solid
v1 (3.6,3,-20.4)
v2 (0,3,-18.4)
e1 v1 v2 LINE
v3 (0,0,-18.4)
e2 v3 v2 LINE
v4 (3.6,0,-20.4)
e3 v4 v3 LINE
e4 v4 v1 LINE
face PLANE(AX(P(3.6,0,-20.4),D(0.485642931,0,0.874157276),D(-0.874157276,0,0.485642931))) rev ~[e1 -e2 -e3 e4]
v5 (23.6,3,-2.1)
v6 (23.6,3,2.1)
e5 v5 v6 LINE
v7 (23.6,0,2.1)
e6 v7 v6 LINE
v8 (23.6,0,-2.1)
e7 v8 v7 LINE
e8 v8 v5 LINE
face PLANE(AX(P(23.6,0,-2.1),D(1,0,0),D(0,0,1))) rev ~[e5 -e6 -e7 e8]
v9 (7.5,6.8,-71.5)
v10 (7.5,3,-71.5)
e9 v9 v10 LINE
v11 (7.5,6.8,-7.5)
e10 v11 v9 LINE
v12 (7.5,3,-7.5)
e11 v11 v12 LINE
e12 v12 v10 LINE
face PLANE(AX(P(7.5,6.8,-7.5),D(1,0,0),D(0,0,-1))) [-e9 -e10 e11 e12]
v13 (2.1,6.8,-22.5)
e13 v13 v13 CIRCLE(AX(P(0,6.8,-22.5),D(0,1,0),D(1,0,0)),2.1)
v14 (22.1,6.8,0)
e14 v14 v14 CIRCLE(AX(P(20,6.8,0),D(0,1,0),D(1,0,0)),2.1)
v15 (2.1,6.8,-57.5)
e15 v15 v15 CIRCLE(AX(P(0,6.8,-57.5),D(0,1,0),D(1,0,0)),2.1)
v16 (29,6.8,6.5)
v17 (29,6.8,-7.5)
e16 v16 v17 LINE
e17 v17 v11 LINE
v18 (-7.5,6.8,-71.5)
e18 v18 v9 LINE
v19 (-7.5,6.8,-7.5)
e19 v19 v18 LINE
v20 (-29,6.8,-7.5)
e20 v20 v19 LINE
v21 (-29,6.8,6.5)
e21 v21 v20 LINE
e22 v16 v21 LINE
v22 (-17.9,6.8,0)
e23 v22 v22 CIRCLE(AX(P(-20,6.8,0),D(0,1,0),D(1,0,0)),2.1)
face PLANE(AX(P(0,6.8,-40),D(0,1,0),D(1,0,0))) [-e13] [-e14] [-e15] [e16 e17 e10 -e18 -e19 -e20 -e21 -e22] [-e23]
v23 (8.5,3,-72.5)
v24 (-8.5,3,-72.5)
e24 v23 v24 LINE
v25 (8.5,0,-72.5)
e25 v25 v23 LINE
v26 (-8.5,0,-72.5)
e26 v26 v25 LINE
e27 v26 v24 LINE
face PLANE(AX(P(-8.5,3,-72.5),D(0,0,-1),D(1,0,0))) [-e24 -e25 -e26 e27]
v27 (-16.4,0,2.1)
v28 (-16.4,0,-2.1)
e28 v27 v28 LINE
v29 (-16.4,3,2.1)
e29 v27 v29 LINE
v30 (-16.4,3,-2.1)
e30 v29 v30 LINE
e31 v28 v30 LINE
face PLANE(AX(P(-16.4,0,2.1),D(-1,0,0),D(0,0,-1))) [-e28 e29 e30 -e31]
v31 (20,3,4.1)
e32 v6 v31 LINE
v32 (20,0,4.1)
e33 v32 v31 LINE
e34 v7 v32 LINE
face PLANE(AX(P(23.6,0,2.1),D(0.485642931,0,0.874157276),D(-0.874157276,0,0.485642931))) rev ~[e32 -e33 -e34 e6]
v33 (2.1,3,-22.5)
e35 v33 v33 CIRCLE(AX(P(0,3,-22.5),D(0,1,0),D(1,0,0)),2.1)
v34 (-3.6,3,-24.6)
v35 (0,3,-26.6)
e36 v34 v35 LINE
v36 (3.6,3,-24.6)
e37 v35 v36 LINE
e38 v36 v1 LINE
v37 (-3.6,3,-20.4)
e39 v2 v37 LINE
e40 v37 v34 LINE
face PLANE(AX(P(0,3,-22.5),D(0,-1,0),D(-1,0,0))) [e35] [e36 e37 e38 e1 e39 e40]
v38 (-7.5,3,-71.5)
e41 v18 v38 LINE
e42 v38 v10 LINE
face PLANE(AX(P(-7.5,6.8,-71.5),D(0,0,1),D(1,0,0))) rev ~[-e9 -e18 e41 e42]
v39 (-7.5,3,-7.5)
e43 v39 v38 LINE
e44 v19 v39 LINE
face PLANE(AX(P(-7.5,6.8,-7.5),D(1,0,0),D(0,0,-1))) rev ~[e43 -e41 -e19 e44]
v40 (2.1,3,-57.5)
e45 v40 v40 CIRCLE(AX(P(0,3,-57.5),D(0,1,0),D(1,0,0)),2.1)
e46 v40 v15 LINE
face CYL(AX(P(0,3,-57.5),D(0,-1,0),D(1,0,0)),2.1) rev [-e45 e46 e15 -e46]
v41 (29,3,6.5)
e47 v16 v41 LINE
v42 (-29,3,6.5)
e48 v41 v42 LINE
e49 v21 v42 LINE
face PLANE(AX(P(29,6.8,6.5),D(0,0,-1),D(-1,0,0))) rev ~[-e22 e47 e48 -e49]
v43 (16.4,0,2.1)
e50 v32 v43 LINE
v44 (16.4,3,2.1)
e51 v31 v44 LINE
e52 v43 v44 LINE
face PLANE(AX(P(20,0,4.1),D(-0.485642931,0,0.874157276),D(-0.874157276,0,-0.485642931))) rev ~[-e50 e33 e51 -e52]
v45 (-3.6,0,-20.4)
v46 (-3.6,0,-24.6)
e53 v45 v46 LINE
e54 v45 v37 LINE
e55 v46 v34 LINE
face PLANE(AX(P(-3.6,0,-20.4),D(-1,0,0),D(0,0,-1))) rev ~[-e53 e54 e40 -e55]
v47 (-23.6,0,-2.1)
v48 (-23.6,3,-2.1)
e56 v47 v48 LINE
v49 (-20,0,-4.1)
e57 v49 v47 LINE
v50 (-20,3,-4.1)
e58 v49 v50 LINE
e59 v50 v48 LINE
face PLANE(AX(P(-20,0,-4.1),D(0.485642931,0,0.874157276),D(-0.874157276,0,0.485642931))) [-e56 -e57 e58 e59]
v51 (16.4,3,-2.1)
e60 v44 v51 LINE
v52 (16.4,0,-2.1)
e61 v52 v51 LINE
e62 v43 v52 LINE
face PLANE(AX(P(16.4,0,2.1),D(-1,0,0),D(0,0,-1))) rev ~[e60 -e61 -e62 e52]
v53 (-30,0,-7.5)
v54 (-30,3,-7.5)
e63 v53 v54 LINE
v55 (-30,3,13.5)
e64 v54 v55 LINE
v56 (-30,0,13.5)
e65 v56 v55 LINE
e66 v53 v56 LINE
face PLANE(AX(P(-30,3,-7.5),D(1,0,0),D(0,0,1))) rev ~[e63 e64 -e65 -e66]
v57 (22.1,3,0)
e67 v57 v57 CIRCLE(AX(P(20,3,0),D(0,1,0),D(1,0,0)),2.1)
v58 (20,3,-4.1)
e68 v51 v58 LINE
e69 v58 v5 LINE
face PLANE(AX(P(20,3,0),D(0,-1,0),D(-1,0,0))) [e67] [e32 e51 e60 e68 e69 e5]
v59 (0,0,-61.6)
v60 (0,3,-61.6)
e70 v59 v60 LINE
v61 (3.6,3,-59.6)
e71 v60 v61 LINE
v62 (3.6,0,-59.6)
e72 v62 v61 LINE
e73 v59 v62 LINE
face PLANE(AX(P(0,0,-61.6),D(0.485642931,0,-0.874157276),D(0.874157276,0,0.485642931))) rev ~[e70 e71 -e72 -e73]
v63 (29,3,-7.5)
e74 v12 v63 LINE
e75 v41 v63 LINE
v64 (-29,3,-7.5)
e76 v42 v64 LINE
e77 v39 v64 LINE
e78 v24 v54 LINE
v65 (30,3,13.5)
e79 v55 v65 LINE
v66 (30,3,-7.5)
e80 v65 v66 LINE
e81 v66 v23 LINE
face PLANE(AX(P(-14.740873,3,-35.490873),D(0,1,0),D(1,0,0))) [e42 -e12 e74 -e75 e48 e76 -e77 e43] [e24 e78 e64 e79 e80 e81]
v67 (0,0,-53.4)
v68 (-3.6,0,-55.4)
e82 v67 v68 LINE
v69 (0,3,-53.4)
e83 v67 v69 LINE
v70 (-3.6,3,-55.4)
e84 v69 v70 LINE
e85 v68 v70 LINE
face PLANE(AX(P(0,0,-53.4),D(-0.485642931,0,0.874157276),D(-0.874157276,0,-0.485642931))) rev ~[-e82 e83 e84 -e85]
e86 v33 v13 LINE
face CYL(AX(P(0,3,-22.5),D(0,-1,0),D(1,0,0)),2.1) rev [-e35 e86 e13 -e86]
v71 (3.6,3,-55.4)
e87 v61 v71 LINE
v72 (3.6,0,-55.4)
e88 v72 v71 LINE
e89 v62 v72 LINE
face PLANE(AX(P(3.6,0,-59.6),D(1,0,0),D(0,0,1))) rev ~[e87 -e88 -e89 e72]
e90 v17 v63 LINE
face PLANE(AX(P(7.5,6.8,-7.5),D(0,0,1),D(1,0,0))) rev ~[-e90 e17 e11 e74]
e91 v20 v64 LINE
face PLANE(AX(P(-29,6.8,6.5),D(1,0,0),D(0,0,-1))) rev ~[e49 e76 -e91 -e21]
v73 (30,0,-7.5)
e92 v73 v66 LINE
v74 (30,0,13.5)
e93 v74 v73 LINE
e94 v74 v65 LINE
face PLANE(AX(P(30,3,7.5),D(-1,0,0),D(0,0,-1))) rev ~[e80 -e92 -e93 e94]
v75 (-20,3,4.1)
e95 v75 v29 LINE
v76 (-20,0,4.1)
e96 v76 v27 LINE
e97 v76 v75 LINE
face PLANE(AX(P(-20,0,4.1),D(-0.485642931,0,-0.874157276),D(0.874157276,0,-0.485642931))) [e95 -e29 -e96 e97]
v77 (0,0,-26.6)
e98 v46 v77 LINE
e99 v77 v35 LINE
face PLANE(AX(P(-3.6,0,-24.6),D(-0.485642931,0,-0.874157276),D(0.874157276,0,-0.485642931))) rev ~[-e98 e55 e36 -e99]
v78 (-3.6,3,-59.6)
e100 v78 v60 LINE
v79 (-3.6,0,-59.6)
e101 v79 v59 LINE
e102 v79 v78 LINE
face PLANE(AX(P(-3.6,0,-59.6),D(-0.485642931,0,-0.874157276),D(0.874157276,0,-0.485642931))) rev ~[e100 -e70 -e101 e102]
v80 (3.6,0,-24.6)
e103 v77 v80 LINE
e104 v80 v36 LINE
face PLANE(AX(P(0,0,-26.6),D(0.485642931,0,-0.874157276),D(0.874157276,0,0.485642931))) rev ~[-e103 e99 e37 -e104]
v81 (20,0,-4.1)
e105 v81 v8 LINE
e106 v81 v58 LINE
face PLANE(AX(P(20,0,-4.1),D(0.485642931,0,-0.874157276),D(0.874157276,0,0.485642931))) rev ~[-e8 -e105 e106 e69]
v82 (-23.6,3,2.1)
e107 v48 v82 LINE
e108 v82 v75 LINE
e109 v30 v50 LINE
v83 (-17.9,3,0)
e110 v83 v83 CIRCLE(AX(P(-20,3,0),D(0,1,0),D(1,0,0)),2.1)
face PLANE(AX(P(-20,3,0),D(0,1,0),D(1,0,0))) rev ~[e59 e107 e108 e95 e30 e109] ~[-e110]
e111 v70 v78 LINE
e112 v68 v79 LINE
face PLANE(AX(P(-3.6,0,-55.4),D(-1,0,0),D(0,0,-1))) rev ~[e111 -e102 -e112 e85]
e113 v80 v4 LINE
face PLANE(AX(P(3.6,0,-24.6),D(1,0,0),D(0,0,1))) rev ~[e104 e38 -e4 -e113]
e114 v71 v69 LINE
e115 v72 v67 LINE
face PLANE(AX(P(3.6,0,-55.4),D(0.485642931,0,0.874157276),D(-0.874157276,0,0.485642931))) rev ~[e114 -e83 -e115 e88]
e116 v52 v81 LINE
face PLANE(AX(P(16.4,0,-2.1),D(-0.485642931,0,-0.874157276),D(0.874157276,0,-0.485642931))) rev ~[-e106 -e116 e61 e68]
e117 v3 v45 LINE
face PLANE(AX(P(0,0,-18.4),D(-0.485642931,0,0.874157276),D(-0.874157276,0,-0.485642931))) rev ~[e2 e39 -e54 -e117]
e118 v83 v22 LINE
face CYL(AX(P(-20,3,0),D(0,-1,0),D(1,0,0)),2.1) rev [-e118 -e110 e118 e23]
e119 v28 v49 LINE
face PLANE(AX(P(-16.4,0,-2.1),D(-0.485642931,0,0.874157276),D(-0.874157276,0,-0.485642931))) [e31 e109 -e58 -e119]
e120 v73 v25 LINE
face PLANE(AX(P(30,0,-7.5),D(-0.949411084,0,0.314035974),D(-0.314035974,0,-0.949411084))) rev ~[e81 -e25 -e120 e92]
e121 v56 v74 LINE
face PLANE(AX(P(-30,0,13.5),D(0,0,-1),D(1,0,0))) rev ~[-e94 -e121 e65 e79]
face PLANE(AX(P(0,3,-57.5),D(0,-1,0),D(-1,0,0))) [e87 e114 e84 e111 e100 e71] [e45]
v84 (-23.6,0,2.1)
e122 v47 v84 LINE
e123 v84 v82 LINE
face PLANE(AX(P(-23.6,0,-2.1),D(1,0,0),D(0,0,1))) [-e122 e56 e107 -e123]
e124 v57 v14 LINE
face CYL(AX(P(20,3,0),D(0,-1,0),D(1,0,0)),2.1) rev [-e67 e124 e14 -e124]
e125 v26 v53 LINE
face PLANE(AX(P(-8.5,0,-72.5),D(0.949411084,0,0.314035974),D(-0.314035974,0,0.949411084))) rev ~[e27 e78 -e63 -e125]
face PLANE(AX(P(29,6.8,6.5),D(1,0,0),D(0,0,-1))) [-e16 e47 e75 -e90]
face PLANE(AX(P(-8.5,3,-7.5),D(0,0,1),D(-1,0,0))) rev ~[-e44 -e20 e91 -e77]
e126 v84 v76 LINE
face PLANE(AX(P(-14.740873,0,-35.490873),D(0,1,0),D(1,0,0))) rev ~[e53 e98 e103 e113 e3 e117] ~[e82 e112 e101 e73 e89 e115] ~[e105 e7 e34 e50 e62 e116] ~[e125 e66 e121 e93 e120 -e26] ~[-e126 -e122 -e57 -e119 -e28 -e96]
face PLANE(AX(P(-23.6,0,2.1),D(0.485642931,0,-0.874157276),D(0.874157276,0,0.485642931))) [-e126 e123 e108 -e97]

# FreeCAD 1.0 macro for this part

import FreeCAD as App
import Part
import Sketcher

V = App.Vector


def add_polygon(sketch, points):
    """Adds a closed chain of lines whose ends are joined by coincident constraints."""
    first, n = sketch.GeometryCount, len(points)
    for a, b in zip(points, points[1:] + points[:1]):
        sketch.addGeometry(Part.LineSegment(App.Vector(*a, 0), App.Vector(*b, 0)), False)
    for i in range(n):
        sketch.addConstraint(Sketcher.Constraint("Coincident", first + i, 2, first + (i + 1) % n, 1))

doc = App.newDocument("Part")
body = doc.addObject("PartDesign::Body", "Body")

# Sketch on XZ plane
sketch1 = body.newObject("Sketcher::SketchObject", "Sketch")
sketch1.AttachmentSupport = (doc.getObject("XZ_Plane"), [""])
sketch1.MapMode = "FlatFace"
add_polygon(sketch1, [(-8.5, -72.5), (-30, -7.5), (-30, 13.5), (30, 13.5), (30, -7.5), (8.5, -72.5)])  # lines 0-5
sketch1.addConstraint([
    Sketcher.Constraint("Vertical", 1),
    Sketcher.Constraint("Horizontal", 2),
    Sketcher.Constraint("Vertical", 3),
    Sketcher.Constraint("Horizontal", 5),
    Sketcher.Constraint("Symmetric", 0, 2, 3, 2, -2),
    Sketcher.Constraint("Equal", 0, 4),
    Sketcher.Constraint("DistanceX", 2, 1, 2, 2, 60.0),
    Sketcher.Constraint("DistanceX", 5, 2, 5, 1, 17.0),
    Sketcher.Constraint("DistanceY", 1, 1, 1, 2, 21.0),
    Sketcher.Constraint("DistanceY", 4, 2, 3, 2, 65.0),
    Sketcher.Constraint("DistanceY", 0, 2, -1, 1, 7.5),
])
pad1 = body.newObject("PartDesign::Pad", "Pad")
pad1.Profile = sketch1
pad1.Length = 3
pad1.Reversed = True

# Sketch on XZ plane
sketch2 = body.newObject("Sketcher::SketchObject", "Sketch001")
sketch2.AttachmentSupport = (doc.getObject("XZ_Plane"), [""])
sketch2.MapMode = "FlatFace"
sketch2.AttachmentOffset = App.Placement(V(0, 0, -3), App.Rotation())
add_polygon(sketch2, [(-8.5, -72.5), (-8.5, -7.5), (-30, -7.5), (-30, 7.5), (30, 7.5), (30, -7.5), (8.5, -7.5), (8.5, -72.5)])  # lines 0-7
sketch2.addGeometry(Part.Circle(V(-20, 0, 0), V(0, 0, 1), 2.1), False)  # 8
sketch2.addGeometry(Part.Circle(V(20, 0, 0), V(0, 0, 1), 2.1), False)  # 9
sketch2.addGeometry(Part.Circle(V(0, -22.5, 0), V(0, 0, 1), 2.1), False)  # 10
sketch2.addGeometry(Part.Circle(V(0, -57.5, 0), V(0, 0, 1), 2.1), False)  # 11
sketch2.addConstraint([
    Sketcher.Constraint("Vertical", 0),
    Sketcher.Constraint("Horizontal", 1),
    Sketcher.Constraint("Vertical", 2),
    Sketcher.Constraint("Horizontal", 3),
    Sketcher.Constraint("Vertical", 4),
    Sketcher.Constraint("Horizontal", 5),
    Sketcher.Constraint("Vertical", 6),
    Sketcher.Constraint("Horizontal", 7),
    Sketcher.Constraint("Equal", 8, 9),
    Sketcher.Constraint("Equal", 9, 10),
    Sketcher.Constraint("Equal", 10, 11),
    Sketcher.Constraint("Symmetric", 8, 3, 9, 3, -1, 1),
    Sketcher.Constraint("Symmetric", 1, 2, 3, 2, -1, 1),
    Sketcher.Constraint("Symmetric", 0, 2, 5, 2, -2),
    Sketcher.Constraint("PointOnObject", 8, 3, -1),
    Sketcher.Constraint("PointOnObject", 10, 3, -2),
    Sketcher.Constraint("PointOnObject", 11, 3, -2),
    Sketcher.Constraint("Diameter", 8, 4.2),
    Sketcher.Constraint("DistanceX", 3, 1, 3, 2, 60.0),
    Sketcher.Constraint("DistanceX", 7, 2, 7, 1, 17.0),
    Sketcher.Constraint("DistanceY", 0, 1, 0, 2, 65.0),
    Sketcher.Constraint("DistanceY", 2, 1, 2, 2, 15.0),
    Sketcher.Constraint("DistanceX", 8, 3, -1, 1, 20.0),
    Sketcher.Constraint("DistanceY", 11, 3, 10, 3, 35.0),
    Sketcher.Constraint("DistanceY", 10, 3, 0, 2, 15.0),
])
pad2 = body.newObject("PartDesign::Pad", "Pad001")
pad2.Profile = sketch2
pad2.Length = 3.8
pad2.Reversed = True

# Sketch on XZ plane
sketch3 = body.newObject("Sketcher::SketchObject", "Sketch002")
sketch3.AttachmentSupport = (doc.getObject("XZ_Plane"), [""])
sketch3.MapMode = "FlatFace"
sketch3.AttachmentOffset = App.Placement(V(0, 0, -6.8), App.Rotation())
sketch3.addGeometry([
    Part.Circle(V(0, -57.5, 0), V(0, 0, 1), 2.1),
    Part.Circle(V(0, -22.5, 0), V(0, 0, 1), 2.1),
    Part.Circle(V(20, 0, 0), V(0, 0, 1), 2.1),
    Part.Circle(V(-20, 0, 0), V(0, 0, 1), 2.1),
], False)
sketch3.addConstraint([
    Sketcher.Constraint("Equal", 0, 1),
    Sketcher.Constraint("Equal", 1, 2),
    Sketcher.Constraint("Equal", 2, 3),
    Sketcher.Constraint("Symmetric", 2, 3, 3, 3, -1, 1),
    Sketcher.Constraint("PointOnObject", 0, 3, -2),
    Sketcher.Constraint("PointOnObject", 1, 3, -2),
    Sketcher.Constraint("PointOnObject", 2, 3, -1),
    Sketcher.Constraint("Diameter", 0, 4.2),
    Sketcher.Constraint("DistanceX", -1, 1, 2, 3, 20.0),
    Sketcher.Constraint("DistanceY", 0, 3, 1, 3, 35.0),
    Sketcher.Constraint("DistanceY", 0, 3, -1, 1, 57.5),
])
pocket1 = body.newObject("PartDesign::Pocket", "Pocket")
pocket1.Profile = sketch3
pocket1.Length = 18.8
pocket1.Reversed = True

# Sketch on XZ plane
sketch4 = body.newObject("Sketcher::SketchObject", "Sketch003")
sketch4.AttachmentSupport = (doc.getObject("XZ_Plane"), [""])
sketch4.MapMode = "FlatFace"
add_polygon(sketch4, [(-23.6, 2.1), (-23.6, -2.1), (-20, -4.1), (-16.4, -2.1), (-16.4, 2.1), (-20, 4.1)])  # lines 0-5
add_polygon(sketch4, [(23.6, -2.1), (23.6, 2.1), (20, 4.1), (16.4, 2.1), (16.4, -2.1), (20, -4.1)])  # lines 6-11
add_polygon(sketch4, [(0, -18.4), (-3.6, -20.4), (-3.6, -24.6), (0, -26.6), (3.6, -24.6), (3.6, -20.4)])  # lines 12-17
add_polygon(sketch4, [(-3.6, -55.4), (-3.6, -59.6), (0, -61.6), (3.6, -59.6), (3.6, -55.4), (0, -53.4)])  # lines 18-23
sketch4.addConstraint([
    Sketcher.Constraint("Vertical", 0),
    Sketcher.Constraint("Vertical", 3),
    Sketcher.Constraint("Vertical", 6),
    Sketcher.Constraint("Vertical", 9),
    Sketcher.Constraint("Vertical", 13),
    Sketcher.Constraint("Vertical", 16),
    Sketcher.Constraint("Vertical", 18),
    Sketcher.Constraint("Vertical", 21),
    Sketcher.Constraint("Symmetric", 0, 2, 6, 2, -1, 1),
    Sketcher.Constraint("Symmetric", 1, 2, 7, 2, -1, 1),
    Sketcher.Constraint("Symmetric", 2, 2, 8, 2, -1, 1),
    Sketcher.Constraint("Symmetric", 4, 2, 10, 2, -1, 1),
    Sketcher.Constraint("Symmetric", 4, 2, 7, 2, -2),
    Sketcher.Constraint("Symmetric", 13, 2, 15, 2, -2),
    Sketcher.Constraint("Symmetric", 18, 2, 20, 2, -2),
    Sketcher.Constraint("PointOnObject", 14, 2, -2),
    Sketcher.Constraint("PointOnObject", 17, 2, -2),
    Sketcher.Constraint("PointOnObject", 19, 2, -2),
    Sketcher.Constraint("PointOnObject", 22, 2, -2),
    Sketcher.Constraint("Parallel", 1, 4),
    Sketcher.Constraint("Parallel", 2, 5),
    Sketcher.Constraint("Parallel", 7, 10),
    Sketcher.Constraint("Parallel", 8, 11),
    Sketcher.Constraint("Parallel", 11, 12),
    Sketcher.Constraint("Parallel", 10, 14),
    Sketcher.Constraint("Parallel", 12, 15),
    Sketcher.Constraint("Parallel", 14, 17),
    Sketcher.Constraint("Parallel", 17, 19),
    Sketcher.Constraint("Parallel", 19, 22),
    Sketcher.Constraint("Parallel", 20, 23),
    Sketcher.Constraint("Horizontal", 0, 2, 2, 2),
    Sketcher.Constraint("Vertical", 13, 2, 18, 2),
    Sketcher.Constraint("Equal", 9, 13),
    Sketcher.Constraint("Equal", 16, 18),
    Sketcher.Constraint("Equal", 11, 12),
    Sketcher.Constraint("DistanceY", 0, 2, 0, 1, 4.2),
    Sketcher.Constraint("DistanceX", 1, 2, -1, 1, 20.0),
    Sketcher.Constraint("DistanceY", 1, 2, 0, 2, 2.0),
    Sketcher.Constraint("DistanceY", 18, 2, 14, 2, 33.0),
    Sketcher.Constraint("DistanceX", 0, 2, -1, 1, 23.6),
    Sketcher.Constraint("DistanceY", 12, 2, -1, 1, 20.4),
])
pocket2 = body.newObject("PartDesign::Pocket", "Pocket001")
pocket2.Profile = sketch4
pocket2.Length = 3

# Sketch on XZ plane
sketch5 = body.newObject("Sketcher::SketchObject", "Sketch004")
sketch5.AttachmentSupport = (doc.getObject("XZ_Plane"), [""])
sketch5.MapMode = "FlatFace"
sketch5.AttachmentOffset = App.Placement(V(0, 0, -6.8), App.Rotation())
add_polygon(sketch5, [(8.5, -72.5), (-8.5, -72.5), (-8.5, -7.5), (-7.5, -7.5), (-7.5, -71.5), (7.5, -71.5), (7.5, -7.5), (8.5, -7.5)])  # lines 0-7
add_polygon(sketch5, [(30, 7.5), (30, -7.5), (29, -7.5), (29, 6.5), (-29, 6.5), (-29, -7.5), (-30, -7.5), (-30, 7.5)])  # lines 8-15
sketch5.addConstraint([
    Sketcher.Constraint("Horizontal", 0),
    Sketcher.Constraint("Vertical", 1),
    Sketcher.Constraint("Horizontal", 2),
    Sketcher.Constraint("Vertical", 3),
    Sketcher.Constraint("Horizontal", 4),
    Sketcher.Constraint("Vertical", 5),
    Sketcher.Constraint("Horizontal", 6),
    Sketcher.Constraint("Vertical", 7),
    Sketcher.Constraint("Vertical", 8),
    Sketcher.Constraint("Horizontal", 9),
    Sketcher.Constraint("Vertical", 10),
    Sketcher.Constraint("Horizontal", 11),
    Sketcher.Constraint("Vertical", 12),
    Sketcher.Constraint("Horizontal", 13),
    Sketcher.Constraint("Vertical", 14),
    Sketcher.Constraint("Horizontal", 15),
    Sketcher.Constraint("Symmetric", 8, 2, 14, 2, -1, 1),
    Sketcher.Constraint("Symmetric", 2, 2, 5, 2, -2),
    Sketcher.Constraint("Symmetric", 9, 2, 12, 2, -2),
    Sketcher.Constraint("Horizontal", 6, 2, 8, 2),
    Sketcher.Constraint("Equal", 2, 6),
    Sketcher.Constraint("Equal", 6, 9),
    Sketcher.Constraint("Equal", 4, 8),
    Sketcher.Constraint("DistanceX", 0, 2, 0, 1, 17.0),
    Sketcher.Constraint("DistanceX", 2, 1, 2, 2, 1.0),
    Sketcher.Constraint("DistanceX", 11, 2, 11, 1, 58.0),
    Sketcher.Constraint("DistanceY", 1, 1, 1, 2, 65.0),
    Sketcher.Constraint("DistanceY", 3, 2, 3, 1, 64.0),
    Sketcher.Constraint("DistanceY", 10, 1, 10, 2, 14.0),
])
pocket3 = body.newObject("PartDesign::Pocket", "Pocket002")
pocket3.Profile = sketch5
pocket3.Length = 3.8
pocket3.Reversed = True

doc.recompute()
